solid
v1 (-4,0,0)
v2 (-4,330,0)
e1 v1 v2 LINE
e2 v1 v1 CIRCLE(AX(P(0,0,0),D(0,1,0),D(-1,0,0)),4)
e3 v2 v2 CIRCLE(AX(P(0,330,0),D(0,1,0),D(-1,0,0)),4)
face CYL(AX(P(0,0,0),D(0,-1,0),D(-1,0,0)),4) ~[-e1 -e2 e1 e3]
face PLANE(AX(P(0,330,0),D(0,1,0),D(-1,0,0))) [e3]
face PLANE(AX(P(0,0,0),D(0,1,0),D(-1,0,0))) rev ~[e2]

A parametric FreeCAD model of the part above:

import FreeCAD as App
import Part
import Sketcher

doc = App.newDocument("Part")
body = doc.addObject("PartDesign::Body", "Body")

sketch1 = body.newObject("Sketcher::SketchObject", "Sketch")
sketch1.AttachmentSupport = (doc.getObject("XZ_Plane"), [""])
sketch1.MapMode = "FlatFace"
sketch1.addGeometry(Part.Circle(App.Vector(0, 0, 0), App.Vector(0, 0, 1), 4), False)
sketch1.addConstraint(Sketcher.Constraint("Coincident", 0, 3, -1, 1))
sketch1.addConstraint(Sketcher.Constraint("Diameter", 0, 8.0))
pad1 = body.newObject("PartDesign::Pad", "Pad")
pad1.Profile = sketch1
pad1.Length = 330
pad1.Reversed = True

doc.recompute()
